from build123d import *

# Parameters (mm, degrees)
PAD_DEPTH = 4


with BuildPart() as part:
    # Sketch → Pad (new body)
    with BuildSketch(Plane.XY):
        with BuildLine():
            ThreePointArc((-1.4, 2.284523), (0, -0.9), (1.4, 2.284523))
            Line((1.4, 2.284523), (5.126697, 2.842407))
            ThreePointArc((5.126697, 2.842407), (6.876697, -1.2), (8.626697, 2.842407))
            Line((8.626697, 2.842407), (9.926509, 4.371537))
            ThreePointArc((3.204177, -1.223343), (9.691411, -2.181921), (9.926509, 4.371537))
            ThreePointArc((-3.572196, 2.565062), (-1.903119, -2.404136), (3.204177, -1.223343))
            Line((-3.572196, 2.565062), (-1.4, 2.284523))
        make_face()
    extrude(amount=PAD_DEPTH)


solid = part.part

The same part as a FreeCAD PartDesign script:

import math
import FreeCAD as App
import Part
import Sketcher

V = App.Vector
Q = App.Units.Quantity

doc = App.newDocument("Part")
body = doc.addObject("PartDesign::Body", "Body")

sketch1 = body.newObject("Sketcher::SketchObject", "Sketch")
sketch1.AttachmentSupport = (doc.getObject("XY_Plane"), [""])
sketch1.MapMode = "FlatFace"
sketch1.addGeometry(Part.ArcOfCircle(Part.Circle(V(0, 1, 0), V(0, 0, 1), 1.9), math.radians(137.463105), math.radians(402.536895)), False)
sketch1.addGeometry(Part.LineSegment(V(-1.4, 2.284523, 0), V(-3.572196, 2.565062, 0)), False)
sketch1.addGeometry(Part.ArcOfCircle(Part.Circle(V(0, 1, 0), V(0, 0, 1), 3.9), math.radians(156.340658), math.radians(325.243647)), False)
sketch1.addGeometry(Part.ArcOfCircle(Part.Circle(V(6.876698, 1.2, 0), V(0, 0, 1), 4.4), math.radians(-146.580852), math.radians(46.120899)), False)
sketch1.addGeometry(Part.LineSegment(V(9.926509, 4.371537, 0), V(8.626697, 2.842407, 0)), False)
sketch1.addGeometry(Part.ArcOfCircle(Part.Circle(V(6.876697, 1.2, 0), V(0, 0, 1), 2.4), math.radians(136.816576), math.radians(403.183424)), False)
sketch1.addGeometry(Part.LineSegment(V(5.126697, 2.842407, 0), V(1.4, 2.284523, 0)), False)
sketch1.addConstraint(Sketcher.Constraint("Coincident", 0, 1, 1, 1))
sketch1.addConstraint(Sketcher.Constraint("Coincident", 1, 2, 2, 1))
sketch1.addConstraint(Sketcher.Constraint("Coincident", 2, 2, 3, 1))
sketch1.addConstraint(Sketcher.Constraint("Coincident", 3, 2, 4, 1))
sketch1.addConstraint(Sketcher.Constraint("Coincident", 4, 2, 5, 2))
sketch1.addConstraint(Sketcher.Constraint("Coincident", 5, 1, 6, 1))
sketch1.addConstraint(Sketcher.Constraint("Coincident", 6, 2, 0, 2))
sketch1.addConstraint(Sketcher.Constraint("Coincident", 2, 3, 0, 3))
sketch1.addConstraint(Sketcher.Constraint("Coincident", 5, 3, 3, 3))
sketch1.addConstraint(Sketcher.Constraint("Symmetric", 0, 1, 6, 2, -2))
sketch1.addConstraint(Sketcher.Constraint("Horizontal", 4, 2, 5, 1))
sketch1.addConstraint(Sketcher.Constraint("Radius", 0, Q("1.9 mm")))
sketch1.addConstraint(Sketcher.Constraint("Radius", 2, Q("3.9 mm")))
sketch1.addConstraint(Sketcher.Constraint("Radius", 3, Q("4.4 mm")))
sketch1.addConstraint(Sketcher.Constraint("Radius", 5, Q("2.4 mm")))
sketch1.addConstraint(Sketcher.Constraint("DistanceY", -1, 1, 0, 3, Q("1 mm")))
sketch1.addConstraint(Sketcher.Constraint("DistanceY", -1, 1, 3, 3, Q("1.2 mm")))
sketch1.addConstraint(Sketcher.Constraint("DistanceX", 0, 1, -1, 1, Q("1.4 mm")))
sketch1.addConstraint(Sketcher.Constraint("DistanceX", 5, 1, 4, 2, Q("3.5 mm")))
sketch1.addConstraint(Sketcher.Constraint("DistanceX", -1, 1, 3, 2, Q("9.926509 mm")))
sketch1.addConstraint(Sketcher.Constraint("DistanceY", 0, 1, 1, 2, Q("0.280539 mm")))
sketch1.addConstraint(Sketcher.Constraint("DistanceX", 2, 2, 5, 3, Q("3.67252 mm")))
pad1 = body.newObject("PartDesign::Pad", "Pad")
pad1.Profile = sketch1
pad1.Length = 4

doc.recompute()
